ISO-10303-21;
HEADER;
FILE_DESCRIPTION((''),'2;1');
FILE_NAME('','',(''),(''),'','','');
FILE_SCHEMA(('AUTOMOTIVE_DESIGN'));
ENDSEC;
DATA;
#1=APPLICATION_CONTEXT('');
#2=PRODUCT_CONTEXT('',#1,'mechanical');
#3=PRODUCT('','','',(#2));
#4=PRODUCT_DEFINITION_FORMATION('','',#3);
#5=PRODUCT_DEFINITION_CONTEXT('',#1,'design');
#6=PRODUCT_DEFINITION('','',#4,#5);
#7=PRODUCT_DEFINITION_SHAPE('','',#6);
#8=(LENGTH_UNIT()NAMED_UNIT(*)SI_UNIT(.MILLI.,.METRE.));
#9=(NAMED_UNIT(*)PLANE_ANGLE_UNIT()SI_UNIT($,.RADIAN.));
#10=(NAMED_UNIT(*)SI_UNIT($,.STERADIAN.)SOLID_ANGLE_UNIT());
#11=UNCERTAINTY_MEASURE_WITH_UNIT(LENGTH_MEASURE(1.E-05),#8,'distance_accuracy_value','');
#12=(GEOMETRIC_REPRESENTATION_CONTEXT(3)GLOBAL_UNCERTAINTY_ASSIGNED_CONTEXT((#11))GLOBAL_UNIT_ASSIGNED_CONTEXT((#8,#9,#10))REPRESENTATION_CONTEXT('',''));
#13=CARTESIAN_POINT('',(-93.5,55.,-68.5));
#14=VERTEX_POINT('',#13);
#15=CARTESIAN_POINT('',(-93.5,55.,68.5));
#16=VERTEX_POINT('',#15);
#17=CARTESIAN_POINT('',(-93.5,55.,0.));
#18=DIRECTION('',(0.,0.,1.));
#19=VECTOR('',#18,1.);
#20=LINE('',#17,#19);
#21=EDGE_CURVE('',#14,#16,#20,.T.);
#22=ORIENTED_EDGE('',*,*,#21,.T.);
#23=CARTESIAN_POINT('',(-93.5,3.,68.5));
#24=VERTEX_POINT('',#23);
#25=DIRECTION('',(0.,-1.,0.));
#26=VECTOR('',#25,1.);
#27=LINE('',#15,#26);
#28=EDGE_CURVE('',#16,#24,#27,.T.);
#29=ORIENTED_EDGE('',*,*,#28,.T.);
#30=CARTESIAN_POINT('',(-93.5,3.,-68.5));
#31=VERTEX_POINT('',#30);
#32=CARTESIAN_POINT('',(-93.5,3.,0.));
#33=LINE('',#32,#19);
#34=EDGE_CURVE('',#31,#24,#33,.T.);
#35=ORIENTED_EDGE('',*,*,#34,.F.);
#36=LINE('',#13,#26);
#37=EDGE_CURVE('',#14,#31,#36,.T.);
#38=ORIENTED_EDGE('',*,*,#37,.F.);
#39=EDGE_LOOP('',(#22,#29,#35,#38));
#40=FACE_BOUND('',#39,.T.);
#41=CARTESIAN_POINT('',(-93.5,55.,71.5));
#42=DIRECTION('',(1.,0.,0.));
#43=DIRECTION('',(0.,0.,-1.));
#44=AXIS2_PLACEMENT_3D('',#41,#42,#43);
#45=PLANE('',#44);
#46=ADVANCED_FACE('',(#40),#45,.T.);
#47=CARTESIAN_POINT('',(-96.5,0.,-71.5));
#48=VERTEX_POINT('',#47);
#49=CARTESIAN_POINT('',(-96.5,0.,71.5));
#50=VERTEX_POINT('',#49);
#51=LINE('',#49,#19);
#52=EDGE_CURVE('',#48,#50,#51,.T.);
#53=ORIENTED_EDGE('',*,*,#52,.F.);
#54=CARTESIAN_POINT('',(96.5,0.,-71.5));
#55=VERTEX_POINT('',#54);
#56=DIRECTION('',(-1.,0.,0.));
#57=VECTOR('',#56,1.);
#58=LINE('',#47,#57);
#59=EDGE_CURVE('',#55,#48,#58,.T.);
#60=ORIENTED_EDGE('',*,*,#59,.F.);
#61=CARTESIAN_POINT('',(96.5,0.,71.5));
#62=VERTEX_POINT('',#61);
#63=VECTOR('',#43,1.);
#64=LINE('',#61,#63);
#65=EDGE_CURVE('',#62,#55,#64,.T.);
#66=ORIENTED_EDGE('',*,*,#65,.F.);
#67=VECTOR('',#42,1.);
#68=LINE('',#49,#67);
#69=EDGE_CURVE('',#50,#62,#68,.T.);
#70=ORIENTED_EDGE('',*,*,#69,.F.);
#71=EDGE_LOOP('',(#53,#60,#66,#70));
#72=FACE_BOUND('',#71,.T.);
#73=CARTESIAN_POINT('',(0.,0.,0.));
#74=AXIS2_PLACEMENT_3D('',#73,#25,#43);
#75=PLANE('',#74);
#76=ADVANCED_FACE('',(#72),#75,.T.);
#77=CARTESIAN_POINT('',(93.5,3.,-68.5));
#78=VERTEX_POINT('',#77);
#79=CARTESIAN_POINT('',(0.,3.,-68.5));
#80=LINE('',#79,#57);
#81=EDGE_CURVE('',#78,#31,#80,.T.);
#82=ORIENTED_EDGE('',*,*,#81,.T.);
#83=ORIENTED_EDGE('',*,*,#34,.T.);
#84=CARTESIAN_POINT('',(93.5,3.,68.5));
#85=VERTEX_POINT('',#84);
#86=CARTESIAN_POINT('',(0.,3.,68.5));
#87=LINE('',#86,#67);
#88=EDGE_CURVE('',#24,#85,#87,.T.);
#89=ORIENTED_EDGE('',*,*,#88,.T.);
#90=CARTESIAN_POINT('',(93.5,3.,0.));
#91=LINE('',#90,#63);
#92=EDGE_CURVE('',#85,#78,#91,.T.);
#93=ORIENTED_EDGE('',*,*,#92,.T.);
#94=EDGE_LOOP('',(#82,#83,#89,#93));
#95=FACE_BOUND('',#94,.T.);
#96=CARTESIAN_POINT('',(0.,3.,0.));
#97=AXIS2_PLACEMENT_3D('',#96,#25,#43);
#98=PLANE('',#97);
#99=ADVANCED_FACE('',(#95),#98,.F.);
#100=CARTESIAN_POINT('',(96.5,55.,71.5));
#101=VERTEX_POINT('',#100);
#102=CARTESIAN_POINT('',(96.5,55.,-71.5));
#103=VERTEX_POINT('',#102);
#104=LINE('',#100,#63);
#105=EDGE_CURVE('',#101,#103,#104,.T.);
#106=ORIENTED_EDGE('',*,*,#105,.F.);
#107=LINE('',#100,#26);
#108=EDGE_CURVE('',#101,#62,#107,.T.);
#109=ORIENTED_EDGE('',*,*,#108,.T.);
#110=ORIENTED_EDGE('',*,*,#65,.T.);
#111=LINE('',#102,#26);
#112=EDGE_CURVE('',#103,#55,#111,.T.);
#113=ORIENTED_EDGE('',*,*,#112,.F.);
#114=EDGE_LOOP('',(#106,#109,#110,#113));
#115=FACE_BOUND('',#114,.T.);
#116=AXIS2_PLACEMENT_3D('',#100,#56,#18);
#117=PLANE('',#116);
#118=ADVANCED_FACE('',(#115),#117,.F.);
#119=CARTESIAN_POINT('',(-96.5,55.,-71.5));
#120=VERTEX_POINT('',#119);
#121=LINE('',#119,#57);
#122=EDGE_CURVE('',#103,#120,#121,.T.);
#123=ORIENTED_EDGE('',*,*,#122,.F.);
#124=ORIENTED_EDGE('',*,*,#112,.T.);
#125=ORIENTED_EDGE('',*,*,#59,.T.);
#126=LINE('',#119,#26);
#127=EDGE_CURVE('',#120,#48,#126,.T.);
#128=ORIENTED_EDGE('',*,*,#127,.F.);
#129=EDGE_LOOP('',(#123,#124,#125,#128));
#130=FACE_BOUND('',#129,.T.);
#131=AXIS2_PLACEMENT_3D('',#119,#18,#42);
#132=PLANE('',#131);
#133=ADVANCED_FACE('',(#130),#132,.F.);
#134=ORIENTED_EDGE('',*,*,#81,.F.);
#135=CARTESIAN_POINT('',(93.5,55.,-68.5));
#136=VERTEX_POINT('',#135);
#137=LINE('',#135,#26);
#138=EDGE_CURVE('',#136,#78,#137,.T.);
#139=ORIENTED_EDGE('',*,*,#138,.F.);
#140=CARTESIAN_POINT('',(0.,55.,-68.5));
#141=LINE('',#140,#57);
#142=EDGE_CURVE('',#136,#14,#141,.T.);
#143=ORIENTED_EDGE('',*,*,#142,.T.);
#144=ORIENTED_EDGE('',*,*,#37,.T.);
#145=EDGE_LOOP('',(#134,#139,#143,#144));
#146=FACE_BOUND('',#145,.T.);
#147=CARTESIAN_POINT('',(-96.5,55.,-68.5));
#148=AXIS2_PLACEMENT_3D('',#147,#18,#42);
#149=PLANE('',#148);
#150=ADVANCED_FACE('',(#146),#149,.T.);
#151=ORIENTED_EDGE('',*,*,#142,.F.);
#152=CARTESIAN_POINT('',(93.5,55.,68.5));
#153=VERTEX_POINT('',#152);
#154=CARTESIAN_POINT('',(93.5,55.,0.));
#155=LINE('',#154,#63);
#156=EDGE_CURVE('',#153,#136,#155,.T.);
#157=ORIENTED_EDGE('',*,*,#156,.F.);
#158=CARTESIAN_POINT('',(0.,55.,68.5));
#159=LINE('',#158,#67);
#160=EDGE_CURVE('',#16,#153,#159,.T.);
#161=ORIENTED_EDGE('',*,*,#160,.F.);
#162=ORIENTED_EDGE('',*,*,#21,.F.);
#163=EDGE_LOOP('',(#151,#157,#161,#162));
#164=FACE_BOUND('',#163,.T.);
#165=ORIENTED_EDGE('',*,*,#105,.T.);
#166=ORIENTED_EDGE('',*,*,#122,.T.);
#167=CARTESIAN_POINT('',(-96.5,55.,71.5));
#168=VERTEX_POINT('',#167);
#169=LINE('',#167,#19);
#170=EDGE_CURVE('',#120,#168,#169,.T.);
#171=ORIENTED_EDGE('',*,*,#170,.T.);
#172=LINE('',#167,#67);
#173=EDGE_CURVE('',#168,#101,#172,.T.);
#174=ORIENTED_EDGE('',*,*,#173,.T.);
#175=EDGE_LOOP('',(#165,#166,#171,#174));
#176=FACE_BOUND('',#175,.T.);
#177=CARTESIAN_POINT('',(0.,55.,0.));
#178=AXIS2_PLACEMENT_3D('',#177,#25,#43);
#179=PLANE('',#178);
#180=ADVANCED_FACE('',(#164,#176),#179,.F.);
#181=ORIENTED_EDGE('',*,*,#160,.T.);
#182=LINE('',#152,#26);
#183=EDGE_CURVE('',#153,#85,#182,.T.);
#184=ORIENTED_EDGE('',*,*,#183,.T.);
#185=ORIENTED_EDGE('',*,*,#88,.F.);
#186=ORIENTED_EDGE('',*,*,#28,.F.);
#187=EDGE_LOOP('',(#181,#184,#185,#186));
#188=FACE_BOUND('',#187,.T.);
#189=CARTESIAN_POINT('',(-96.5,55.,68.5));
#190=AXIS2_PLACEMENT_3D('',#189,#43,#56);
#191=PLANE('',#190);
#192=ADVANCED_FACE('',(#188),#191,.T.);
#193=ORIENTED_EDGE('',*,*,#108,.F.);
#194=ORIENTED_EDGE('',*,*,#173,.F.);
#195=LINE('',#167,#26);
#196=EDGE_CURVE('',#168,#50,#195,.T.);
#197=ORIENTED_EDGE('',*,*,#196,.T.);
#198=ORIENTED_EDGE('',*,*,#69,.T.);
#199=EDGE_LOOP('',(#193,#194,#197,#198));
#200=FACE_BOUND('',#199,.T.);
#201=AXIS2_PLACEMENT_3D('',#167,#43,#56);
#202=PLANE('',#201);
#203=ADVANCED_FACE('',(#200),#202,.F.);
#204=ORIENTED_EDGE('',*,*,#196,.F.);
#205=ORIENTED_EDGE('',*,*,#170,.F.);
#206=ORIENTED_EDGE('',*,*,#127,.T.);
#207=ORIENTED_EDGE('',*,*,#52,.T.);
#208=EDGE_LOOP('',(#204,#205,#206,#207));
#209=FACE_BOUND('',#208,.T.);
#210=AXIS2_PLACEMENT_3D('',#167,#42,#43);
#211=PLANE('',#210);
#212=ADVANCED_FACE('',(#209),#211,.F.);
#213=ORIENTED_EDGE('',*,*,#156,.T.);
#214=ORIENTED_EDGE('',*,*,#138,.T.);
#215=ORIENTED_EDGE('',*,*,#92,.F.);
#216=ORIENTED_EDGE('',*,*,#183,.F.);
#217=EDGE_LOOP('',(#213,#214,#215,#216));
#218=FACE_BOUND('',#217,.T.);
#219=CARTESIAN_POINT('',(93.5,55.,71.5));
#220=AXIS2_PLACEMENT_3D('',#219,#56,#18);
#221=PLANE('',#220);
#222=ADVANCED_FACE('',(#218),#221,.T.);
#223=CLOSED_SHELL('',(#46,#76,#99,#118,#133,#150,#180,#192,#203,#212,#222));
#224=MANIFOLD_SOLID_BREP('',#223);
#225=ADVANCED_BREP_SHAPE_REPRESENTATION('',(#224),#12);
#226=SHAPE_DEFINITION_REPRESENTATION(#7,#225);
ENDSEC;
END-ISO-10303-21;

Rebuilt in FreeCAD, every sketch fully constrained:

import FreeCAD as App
import Part
import Sketcher

V = App.Vector


def faces_at(feature, points):
    """Names of the faces that lie closest to the given points."""
    faces = feature.Shape.Faces
    near = lambda p: min(range(len(faces)), key=lambda i: faces[i].distToShape(Part.Vertex(*p))[0])
    return sorted({f"Face{near(p) + 1}" for p in points})

doc = App.newDocument("Part")
body = doc.addObject("PartDesign::Body", "Body")

# Sketch on XZ plane
sketch1 = body.newObject("Sketcher::SketchObject", "Sketch")
sketch1.AttachmentSupport = (doc.getObject("XZ_Plane"), [""])
sketch1.MapMode = "FlatFace"
sketch1.addGeometry(Part.LineSegment(V(-96, -72, 0), V(-96, 72, 0)), False)
sketch1.addGeometry(Part.LineSegment(V(-96, 72, 0), V(96, 72, 0)), False)
sketch1.addGeometry(Part.LineSegment(V(96, 72, 0), V(96, -72, 0)), False)
sketch1.addGeometry(Part.LineSegment(V(96, -72, 0), V(-96, -72, 0)), False)
sketch1.addConstraint(Sketcher.Constraint("Coincident", 0, 2, 1, 1))
sketch1.addConstraint(Sketcher.Constraint("Coincident", 1, 2, 2, 1))
sketch1.addConstraint(Sketcher.Constraint("Coincident", 2, 2, 3, 1))
sketch1.addConstraint(Sketcher.Constraint("Coincident", 3, 2, 0, 1))
sketch1.addConstraint(Sketcher.Constraint("Vertical", 0))
sketch1.addConstraint(Sketcher.Constraint("Horizontal", 1))
sketch1.addConstraint(Sketcher.Constraint("Vertical", 2))
sketch1.addConstraint(Sketcher.Constraint("Horizontal", 3))
sketch1.addConstraint(Sketcher.Constraint("Symmetric", 0, 2, 2, 2, -1, 1))
sketch1.addConstraint(Sketcher.Constraint("DistanceX", 1, 1, 1, 2, 193.0))
sketch1.addConstraint(Sketcher.Constraint("DistanceY", 0, 1, 0, 2, 143.0))
pad1 = body.newObject("PartDesign::Pad", "Pad")
pad1.Profile = sketch1
pad1.Length = 55
pad1.Reversed = True
doc.recompute()

thickness = body.newObject("PartDesign::Thickness", "Thickness")
thickness.Base = (pad1, faces_at(pad1, [(0, 55, 0)]))
thickness.Value = 3
thickness.Reversed = True
thickness.Join = "Intersection"

doc.recompute()
